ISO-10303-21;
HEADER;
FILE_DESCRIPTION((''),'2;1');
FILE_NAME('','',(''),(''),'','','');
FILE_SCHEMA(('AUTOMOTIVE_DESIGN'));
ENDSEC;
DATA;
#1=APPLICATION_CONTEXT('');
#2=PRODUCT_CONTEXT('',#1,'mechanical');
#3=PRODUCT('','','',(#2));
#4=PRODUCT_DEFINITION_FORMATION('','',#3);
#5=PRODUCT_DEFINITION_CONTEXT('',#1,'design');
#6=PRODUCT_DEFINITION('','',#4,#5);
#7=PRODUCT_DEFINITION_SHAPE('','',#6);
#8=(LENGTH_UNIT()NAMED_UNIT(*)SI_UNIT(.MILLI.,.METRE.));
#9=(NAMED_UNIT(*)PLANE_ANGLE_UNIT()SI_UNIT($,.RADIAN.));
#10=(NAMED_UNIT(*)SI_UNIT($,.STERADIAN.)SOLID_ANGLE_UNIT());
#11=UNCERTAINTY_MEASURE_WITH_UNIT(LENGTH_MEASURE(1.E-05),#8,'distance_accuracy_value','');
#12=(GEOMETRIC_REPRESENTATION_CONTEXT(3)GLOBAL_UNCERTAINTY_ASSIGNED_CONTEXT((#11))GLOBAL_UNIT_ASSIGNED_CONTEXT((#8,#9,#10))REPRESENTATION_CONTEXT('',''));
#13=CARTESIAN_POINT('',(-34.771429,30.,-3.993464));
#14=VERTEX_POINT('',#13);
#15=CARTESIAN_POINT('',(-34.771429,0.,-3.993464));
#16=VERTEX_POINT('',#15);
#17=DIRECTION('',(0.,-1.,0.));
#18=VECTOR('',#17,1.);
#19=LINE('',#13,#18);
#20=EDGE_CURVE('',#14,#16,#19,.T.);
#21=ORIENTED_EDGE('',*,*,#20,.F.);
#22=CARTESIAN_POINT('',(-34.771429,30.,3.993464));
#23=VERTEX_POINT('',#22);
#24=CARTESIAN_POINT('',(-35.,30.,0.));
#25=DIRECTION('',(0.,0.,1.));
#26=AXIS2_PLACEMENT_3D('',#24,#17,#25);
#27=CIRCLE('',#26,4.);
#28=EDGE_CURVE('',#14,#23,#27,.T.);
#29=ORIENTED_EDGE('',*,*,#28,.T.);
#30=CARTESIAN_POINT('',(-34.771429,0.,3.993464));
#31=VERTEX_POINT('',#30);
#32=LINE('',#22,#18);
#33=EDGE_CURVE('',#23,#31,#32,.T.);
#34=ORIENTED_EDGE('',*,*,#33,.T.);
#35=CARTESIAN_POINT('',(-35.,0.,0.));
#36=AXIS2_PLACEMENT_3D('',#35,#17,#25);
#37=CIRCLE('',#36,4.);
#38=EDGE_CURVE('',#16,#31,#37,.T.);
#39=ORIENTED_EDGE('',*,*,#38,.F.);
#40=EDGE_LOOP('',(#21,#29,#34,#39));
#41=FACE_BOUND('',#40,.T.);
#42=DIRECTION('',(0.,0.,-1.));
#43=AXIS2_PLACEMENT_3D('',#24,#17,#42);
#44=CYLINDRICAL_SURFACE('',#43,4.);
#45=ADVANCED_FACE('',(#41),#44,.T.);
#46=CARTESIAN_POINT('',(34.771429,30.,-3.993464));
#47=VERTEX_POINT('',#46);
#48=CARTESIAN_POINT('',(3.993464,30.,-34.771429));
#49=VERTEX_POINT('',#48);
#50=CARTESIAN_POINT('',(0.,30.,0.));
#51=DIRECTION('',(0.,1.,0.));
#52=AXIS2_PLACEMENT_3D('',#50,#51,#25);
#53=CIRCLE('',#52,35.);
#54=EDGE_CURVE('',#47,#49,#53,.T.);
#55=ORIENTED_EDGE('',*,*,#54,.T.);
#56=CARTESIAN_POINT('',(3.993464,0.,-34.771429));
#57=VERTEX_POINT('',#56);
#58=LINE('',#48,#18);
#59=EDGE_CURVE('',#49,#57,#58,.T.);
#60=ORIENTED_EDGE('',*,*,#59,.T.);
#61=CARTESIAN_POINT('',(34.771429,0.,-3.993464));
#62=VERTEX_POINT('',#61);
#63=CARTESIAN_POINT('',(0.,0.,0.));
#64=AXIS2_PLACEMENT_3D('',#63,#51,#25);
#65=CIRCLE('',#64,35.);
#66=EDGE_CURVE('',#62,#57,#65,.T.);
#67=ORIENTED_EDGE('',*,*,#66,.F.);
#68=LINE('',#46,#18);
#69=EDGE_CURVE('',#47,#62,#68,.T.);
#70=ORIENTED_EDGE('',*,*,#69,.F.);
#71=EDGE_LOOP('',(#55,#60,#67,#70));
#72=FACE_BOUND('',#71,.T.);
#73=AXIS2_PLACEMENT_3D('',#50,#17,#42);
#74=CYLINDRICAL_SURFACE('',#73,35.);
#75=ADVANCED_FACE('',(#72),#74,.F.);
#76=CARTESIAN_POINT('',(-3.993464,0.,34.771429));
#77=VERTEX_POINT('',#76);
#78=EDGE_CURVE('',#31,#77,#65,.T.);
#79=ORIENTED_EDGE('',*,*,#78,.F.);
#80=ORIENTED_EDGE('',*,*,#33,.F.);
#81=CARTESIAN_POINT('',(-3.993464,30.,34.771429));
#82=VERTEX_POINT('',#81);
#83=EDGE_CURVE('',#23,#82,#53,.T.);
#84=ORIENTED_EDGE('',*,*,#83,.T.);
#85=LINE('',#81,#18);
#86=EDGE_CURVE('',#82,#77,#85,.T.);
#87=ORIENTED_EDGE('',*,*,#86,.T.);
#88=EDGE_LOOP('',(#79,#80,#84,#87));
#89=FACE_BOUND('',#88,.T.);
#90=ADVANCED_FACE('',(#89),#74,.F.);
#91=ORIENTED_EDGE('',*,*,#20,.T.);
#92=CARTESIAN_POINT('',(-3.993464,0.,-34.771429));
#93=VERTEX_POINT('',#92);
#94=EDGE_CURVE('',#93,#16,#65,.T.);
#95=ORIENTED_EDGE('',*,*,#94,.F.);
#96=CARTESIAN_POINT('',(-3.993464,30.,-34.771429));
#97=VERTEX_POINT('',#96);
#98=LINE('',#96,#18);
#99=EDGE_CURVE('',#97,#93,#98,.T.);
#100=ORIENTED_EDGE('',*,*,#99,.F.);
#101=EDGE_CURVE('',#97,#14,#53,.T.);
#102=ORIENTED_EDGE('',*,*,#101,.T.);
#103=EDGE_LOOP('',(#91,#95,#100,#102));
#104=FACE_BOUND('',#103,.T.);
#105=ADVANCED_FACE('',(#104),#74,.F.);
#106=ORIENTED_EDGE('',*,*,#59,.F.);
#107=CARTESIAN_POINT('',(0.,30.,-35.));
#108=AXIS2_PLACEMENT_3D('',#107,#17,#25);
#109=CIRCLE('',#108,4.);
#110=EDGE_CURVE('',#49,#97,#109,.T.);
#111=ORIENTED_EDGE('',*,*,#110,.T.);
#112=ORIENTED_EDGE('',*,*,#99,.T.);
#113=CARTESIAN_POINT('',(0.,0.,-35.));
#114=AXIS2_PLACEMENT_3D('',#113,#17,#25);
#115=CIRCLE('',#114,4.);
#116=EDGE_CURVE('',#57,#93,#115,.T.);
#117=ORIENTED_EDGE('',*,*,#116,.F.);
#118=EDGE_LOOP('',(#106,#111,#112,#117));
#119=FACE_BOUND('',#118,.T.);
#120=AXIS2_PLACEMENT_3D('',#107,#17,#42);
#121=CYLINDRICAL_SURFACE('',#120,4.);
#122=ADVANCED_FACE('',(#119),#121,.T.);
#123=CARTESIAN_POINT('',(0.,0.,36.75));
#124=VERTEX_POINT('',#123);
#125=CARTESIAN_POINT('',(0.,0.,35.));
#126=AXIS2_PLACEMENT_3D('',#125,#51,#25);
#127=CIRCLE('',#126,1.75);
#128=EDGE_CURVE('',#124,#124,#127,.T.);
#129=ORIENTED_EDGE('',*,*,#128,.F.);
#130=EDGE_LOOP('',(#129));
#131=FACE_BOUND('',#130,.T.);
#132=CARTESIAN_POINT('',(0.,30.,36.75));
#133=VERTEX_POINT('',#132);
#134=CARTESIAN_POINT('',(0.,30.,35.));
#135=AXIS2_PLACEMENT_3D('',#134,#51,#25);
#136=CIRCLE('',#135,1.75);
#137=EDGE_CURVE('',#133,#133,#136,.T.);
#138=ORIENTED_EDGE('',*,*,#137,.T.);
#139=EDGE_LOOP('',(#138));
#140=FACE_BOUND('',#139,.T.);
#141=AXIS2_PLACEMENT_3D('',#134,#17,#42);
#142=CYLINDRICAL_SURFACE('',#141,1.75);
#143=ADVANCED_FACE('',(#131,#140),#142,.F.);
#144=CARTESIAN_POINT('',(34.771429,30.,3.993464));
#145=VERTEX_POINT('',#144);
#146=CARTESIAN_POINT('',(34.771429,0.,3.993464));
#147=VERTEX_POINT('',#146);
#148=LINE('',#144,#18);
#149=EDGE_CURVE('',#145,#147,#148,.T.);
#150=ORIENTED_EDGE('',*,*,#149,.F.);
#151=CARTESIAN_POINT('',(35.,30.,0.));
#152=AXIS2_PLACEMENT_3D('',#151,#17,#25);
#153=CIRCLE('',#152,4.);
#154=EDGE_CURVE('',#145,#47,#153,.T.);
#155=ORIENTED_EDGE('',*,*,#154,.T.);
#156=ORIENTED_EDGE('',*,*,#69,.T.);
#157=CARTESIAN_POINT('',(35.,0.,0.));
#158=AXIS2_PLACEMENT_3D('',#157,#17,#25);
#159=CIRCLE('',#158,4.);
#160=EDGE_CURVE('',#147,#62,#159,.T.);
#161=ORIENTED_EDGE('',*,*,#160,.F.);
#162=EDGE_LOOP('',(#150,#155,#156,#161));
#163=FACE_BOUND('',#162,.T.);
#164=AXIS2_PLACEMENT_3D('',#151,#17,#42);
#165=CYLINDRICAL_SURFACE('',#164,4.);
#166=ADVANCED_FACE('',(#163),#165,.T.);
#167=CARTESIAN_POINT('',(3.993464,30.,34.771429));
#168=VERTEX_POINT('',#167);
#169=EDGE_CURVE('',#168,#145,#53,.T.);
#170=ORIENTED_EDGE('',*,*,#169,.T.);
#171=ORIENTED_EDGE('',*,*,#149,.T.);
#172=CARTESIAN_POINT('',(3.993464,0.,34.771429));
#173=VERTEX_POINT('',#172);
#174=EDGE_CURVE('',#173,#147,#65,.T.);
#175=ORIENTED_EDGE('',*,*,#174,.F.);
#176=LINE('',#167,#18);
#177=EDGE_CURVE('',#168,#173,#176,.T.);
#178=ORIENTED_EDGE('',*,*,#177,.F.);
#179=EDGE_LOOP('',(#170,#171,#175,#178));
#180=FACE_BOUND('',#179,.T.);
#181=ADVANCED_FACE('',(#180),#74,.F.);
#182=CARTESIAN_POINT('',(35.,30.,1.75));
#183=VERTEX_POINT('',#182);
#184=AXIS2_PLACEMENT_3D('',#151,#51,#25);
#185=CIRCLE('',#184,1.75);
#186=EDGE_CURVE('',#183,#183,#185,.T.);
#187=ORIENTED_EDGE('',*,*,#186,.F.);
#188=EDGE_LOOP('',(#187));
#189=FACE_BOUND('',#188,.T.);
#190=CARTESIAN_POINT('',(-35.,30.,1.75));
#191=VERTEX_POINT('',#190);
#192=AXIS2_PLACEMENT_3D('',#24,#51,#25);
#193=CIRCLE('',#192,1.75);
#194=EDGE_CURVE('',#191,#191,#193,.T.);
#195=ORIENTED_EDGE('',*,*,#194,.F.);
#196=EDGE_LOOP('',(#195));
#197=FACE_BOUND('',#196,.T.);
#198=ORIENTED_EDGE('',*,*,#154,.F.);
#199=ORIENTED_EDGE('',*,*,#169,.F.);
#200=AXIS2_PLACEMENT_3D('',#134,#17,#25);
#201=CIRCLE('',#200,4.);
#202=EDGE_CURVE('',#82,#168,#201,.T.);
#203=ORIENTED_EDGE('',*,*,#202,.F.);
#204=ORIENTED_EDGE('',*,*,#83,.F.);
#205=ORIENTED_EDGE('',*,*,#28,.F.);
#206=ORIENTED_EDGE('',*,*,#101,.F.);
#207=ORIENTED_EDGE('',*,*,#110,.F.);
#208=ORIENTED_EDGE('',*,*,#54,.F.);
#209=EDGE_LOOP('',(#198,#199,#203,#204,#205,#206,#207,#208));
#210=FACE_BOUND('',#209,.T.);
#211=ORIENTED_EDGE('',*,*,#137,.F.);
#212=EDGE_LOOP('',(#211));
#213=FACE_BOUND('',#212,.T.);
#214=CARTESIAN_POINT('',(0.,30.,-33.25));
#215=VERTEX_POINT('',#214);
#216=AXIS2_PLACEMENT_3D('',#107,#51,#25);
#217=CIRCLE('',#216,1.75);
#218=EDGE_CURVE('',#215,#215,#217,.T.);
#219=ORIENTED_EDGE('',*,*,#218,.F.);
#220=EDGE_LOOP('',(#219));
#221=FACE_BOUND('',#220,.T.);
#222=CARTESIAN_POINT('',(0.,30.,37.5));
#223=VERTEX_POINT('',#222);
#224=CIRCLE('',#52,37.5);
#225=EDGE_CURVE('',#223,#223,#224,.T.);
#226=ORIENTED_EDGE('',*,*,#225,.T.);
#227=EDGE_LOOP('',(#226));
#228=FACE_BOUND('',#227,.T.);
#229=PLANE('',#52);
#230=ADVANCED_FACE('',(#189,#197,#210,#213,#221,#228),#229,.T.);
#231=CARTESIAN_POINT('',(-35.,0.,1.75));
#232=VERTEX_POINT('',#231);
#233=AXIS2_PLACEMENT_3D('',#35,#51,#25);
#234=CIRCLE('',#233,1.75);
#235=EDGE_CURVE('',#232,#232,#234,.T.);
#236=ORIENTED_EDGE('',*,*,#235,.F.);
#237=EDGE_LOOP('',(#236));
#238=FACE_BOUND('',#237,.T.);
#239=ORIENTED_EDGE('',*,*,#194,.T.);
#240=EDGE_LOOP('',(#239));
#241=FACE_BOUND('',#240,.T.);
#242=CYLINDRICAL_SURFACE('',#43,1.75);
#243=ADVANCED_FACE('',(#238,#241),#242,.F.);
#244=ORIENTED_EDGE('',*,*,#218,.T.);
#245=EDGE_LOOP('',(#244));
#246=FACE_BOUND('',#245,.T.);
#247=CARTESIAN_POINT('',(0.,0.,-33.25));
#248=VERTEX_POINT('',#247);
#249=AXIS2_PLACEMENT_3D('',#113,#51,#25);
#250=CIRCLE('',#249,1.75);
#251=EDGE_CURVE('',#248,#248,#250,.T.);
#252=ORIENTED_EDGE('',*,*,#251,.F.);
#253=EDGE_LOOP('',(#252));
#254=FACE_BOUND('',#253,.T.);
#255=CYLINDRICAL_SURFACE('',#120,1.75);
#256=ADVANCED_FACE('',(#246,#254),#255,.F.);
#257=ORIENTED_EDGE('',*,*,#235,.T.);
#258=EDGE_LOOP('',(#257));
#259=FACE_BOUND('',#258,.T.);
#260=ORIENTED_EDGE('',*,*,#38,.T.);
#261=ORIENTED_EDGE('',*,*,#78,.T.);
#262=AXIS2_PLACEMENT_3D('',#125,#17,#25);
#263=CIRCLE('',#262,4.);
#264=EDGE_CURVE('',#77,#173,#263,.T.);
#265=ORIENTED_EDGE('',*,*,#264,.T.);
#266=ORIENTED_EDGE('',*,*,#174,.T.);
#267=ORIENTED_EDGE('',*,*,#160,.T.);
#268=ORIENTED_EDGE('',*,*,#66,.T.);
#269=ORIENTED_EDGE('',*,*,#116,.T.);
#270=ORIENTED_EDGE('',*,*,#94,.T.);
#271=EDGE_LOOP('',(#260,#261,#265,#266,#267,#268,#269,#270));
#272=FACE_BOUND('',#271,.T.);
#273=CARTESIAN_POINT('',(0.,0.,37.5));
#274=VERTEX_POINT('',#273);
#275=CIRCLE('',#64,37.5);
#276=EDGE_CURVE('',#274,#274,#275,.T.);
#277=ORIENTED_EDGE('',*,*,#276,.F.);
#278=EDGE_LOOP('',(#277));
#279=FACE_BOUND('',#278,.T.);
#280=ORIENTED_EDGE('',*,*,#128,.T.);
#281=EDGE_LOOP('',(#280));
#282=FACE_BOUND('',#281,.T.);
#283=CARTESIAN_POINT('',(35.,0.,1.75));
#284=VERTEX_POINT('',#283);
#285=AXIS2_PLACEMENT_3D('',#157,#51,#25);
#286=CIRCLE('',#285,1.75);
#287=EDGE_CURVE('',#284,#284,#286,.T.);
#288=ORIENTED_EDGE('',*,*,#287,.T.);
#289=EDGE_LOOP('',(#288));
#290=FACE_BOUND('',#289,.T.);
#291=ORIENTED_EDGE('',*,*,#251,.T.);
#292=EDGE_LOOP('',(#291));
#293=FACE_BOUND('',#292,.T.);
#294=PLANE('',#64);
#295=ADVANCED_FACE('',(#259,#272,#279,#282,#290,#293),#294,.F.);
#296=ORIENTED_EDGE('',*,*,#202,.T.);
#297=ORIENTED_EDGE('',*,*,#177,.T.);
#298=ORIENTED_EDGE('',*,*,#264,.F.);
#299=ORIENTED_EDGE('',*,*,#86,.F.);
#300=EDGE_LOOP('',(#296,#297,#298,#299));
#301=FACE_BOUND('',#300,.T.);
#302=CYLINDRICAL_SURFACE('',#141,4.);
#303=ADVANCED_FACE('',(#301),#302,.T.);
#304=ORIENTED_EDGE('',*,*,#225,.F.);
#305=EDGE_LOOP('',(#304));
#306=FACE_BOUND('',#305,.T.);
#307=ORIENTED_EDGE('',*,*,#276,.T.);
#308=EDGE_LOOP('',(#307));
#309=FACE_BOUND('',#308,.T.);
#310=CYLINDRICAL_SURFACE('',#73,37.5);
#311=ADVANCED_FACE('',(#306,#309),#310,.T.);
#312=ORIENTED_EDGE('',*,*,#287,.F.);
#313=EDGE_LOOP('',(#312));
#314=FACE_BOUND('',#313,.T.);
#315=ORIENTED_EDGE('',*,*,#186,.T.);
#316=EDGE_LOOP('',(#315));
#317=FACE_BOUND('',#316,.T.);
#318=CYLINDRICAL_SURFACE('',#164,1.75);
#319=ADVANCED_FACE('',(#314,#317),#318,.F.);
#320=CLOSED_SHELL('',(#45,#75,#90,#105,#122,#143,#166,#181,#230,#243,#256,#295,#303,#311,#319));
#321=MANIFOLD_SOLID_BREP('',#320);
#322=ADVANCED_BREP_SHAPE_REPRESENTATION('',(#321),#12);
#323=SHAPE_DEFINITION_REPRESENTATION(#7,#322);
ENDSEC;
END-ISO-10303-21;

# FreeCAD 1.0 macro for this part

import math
import FreeCAD as App
import Part
import Sketcher
from FreeCAD import Vector

doc = App.newDocument("Part")
body = doc.addObject("PartDesign::Body", "Body")

sketch1 = doc.addObject("Sketcher::SketchObject", "Sketch")
body.addObject(sketch1)
sketch1.AttachmentSupport = (doc.XZ_Plane, [""])
sketch1.MapMode = "FlatFace"
sketch1.addGeometry([
    Part.Circle(Vector(0, 0, 0), Vector(0, 0, 1), 37.5),
    Part.Circle(Vector(0, -35, 0), Vector(0, 0, 1), 1.75),
    Part.Circle(Vector(-35, 0, 0), Vector(0, 0, 1), 1.75),
    Part.Circle(Vector(35, 0, 0), Vector(0, 0, 1), 1.75),
    Part.ArcOfCircle(Part.Circle(Vector(0, 0, 0), Vector(0, 0, 1), 35), math.radians(96.551658), math.radians(173.448342)),
    Part.ArcOfCircle(Part.Circle(Vector(-35, 0, 0), Vector(0, 0, 1), 4), math.radians(-86.724171), math.radians(86.724171)),
    Part.ArcOfCircle(Part.Circle(Vector(0, 0, 0), Vector(0, 0, 1), 35), math.radians(-173.448342), math.radians(-96.551658)),
    Part.ArcOfCircle(Part.Circle(Vector(0, -35, 0), Vector(0, 0, 1), 4), math.radians(3.275829), math.radians(176.724171)),
    Part.ArcOfCircle(Part.Circle(Vector(0, 0, 0), Vector(0, 0, 1), 35), math.radians(-83.448342), math.radians(-6.551658)),
    Part.ArcOfCircle(Part.Circle(Vector(35, 0, 0), Vector(0, 0, 1), 4), math.radians(93.275829), math.radians(266.724171)),
    Part.ArcOfCircle(Part.Circle(Vector(0, 0, 0), Vector(0, 0, 1), 35), math.radians(6.551658), math.radians(83.448342)),
    Part.ArcOfCircle(Part.Circle(Vector(0, 35, 0), Vector(0, 0, 1), 4), math.radians(-176.724171), math.radians(-3.275829)),
    Part.Circle(Vector(0, 35, 0), Vector(0, 0, 1), 1.75),
], False)
sketch1.addConstraint([
    Sketcher.Constraint("Coincident", 4, 2, 5, 2),
    Sketcher.Constraint("Coincident", 5, 1, 6, 1),
    Sketcher.Constraint("Coincident", 6, 2, 7, 2),
    Sketcher.Constraint("Coincident", 7, 1, 8, 1),
    Sketcher.Constraint("Coincident", 8, 2, 9, 2),
    Sketcher.Constraint("Coincident", 9, 1, 10, 1),
    Sketcher.Constraint("Coincident", 10, 2, 11, 2),
    Sketcher.Constraint("Coincident", 11, 1, 4, 1),
    Sketcher.Constraint("Coincident", 0, 3, -1, 1),
    Sketcher.Constraint("Coincident", 4, 3, -1, 1),
    Sketcher.Constraint("Coincident", 6, 3, -1, 1),
    Sketcher.Constraint("Coincident", 8, 3, -1, 1),
    Sketcher.Constraint("Coincident", 10, 3, -1, 1),
    Sketcher.Constraint("Coincident", 5, 3, 2, 3),
    Sketcher.Constraint("Coincident", 7, 3, 1, 3),
    Sketcher.Constraint("Coincident", 9, 3, 3, 3),
    Sketcher.Constraint("Coincident", 12, 3, 11, 3),
    Sketcher.Constraint("Equal", 1, 2),
    Sketcher.Constraint("Equal", 2, 3),
    Sketcher.Constraint("Equal", 4, 6),
    Sketcher.Constraint("Equal", 5, 7),
    Sketcher.Constraint("Equal", 6, 8),
    Sketcher.Constraint("Equal", 7, 9),
    Sketcher.Constraint("Equal", 8, 10),
    Sketcher.Constraint("Equal", 9, 11),
    Sketcher.Constraint("Equal", 3, 12),
    Sketcher.Constraint("Symmetric", 2, 3, 3, 3, -1, 1),
    Sketcher.Constraint("Symmetric", 1, 3, 11, 3, -1, 1),
    Sketcher.Constraint("PointOnObject", 1, 3, -2),
    Sketcher.Constraint("PointOnObject", 2, 3, -1),
    Sketcher.Constraint("Diameter", 0, 75.0),
    Sketcher.Constraint("Radius", 4, 35.0),
    Sketcher.Constraint("Radius", 5, 4.0),
    Sketcher.Constraint("Diameter", 1, 3.5),
    Sketcher.Constraint("DistanceY", 1, 3, -1, 1, 35.0),
    Sketcher.Constraint("DistanceX", 2, 3, -1, 1, 35.0),
])
pad1 = doc.addObject("PartDesign::Pad", "Pad")
body.addObject(pad1)
pad1.Profile = sketch1
pad1.Length = 30
pad1.Reversed = True

doc.recompute()
